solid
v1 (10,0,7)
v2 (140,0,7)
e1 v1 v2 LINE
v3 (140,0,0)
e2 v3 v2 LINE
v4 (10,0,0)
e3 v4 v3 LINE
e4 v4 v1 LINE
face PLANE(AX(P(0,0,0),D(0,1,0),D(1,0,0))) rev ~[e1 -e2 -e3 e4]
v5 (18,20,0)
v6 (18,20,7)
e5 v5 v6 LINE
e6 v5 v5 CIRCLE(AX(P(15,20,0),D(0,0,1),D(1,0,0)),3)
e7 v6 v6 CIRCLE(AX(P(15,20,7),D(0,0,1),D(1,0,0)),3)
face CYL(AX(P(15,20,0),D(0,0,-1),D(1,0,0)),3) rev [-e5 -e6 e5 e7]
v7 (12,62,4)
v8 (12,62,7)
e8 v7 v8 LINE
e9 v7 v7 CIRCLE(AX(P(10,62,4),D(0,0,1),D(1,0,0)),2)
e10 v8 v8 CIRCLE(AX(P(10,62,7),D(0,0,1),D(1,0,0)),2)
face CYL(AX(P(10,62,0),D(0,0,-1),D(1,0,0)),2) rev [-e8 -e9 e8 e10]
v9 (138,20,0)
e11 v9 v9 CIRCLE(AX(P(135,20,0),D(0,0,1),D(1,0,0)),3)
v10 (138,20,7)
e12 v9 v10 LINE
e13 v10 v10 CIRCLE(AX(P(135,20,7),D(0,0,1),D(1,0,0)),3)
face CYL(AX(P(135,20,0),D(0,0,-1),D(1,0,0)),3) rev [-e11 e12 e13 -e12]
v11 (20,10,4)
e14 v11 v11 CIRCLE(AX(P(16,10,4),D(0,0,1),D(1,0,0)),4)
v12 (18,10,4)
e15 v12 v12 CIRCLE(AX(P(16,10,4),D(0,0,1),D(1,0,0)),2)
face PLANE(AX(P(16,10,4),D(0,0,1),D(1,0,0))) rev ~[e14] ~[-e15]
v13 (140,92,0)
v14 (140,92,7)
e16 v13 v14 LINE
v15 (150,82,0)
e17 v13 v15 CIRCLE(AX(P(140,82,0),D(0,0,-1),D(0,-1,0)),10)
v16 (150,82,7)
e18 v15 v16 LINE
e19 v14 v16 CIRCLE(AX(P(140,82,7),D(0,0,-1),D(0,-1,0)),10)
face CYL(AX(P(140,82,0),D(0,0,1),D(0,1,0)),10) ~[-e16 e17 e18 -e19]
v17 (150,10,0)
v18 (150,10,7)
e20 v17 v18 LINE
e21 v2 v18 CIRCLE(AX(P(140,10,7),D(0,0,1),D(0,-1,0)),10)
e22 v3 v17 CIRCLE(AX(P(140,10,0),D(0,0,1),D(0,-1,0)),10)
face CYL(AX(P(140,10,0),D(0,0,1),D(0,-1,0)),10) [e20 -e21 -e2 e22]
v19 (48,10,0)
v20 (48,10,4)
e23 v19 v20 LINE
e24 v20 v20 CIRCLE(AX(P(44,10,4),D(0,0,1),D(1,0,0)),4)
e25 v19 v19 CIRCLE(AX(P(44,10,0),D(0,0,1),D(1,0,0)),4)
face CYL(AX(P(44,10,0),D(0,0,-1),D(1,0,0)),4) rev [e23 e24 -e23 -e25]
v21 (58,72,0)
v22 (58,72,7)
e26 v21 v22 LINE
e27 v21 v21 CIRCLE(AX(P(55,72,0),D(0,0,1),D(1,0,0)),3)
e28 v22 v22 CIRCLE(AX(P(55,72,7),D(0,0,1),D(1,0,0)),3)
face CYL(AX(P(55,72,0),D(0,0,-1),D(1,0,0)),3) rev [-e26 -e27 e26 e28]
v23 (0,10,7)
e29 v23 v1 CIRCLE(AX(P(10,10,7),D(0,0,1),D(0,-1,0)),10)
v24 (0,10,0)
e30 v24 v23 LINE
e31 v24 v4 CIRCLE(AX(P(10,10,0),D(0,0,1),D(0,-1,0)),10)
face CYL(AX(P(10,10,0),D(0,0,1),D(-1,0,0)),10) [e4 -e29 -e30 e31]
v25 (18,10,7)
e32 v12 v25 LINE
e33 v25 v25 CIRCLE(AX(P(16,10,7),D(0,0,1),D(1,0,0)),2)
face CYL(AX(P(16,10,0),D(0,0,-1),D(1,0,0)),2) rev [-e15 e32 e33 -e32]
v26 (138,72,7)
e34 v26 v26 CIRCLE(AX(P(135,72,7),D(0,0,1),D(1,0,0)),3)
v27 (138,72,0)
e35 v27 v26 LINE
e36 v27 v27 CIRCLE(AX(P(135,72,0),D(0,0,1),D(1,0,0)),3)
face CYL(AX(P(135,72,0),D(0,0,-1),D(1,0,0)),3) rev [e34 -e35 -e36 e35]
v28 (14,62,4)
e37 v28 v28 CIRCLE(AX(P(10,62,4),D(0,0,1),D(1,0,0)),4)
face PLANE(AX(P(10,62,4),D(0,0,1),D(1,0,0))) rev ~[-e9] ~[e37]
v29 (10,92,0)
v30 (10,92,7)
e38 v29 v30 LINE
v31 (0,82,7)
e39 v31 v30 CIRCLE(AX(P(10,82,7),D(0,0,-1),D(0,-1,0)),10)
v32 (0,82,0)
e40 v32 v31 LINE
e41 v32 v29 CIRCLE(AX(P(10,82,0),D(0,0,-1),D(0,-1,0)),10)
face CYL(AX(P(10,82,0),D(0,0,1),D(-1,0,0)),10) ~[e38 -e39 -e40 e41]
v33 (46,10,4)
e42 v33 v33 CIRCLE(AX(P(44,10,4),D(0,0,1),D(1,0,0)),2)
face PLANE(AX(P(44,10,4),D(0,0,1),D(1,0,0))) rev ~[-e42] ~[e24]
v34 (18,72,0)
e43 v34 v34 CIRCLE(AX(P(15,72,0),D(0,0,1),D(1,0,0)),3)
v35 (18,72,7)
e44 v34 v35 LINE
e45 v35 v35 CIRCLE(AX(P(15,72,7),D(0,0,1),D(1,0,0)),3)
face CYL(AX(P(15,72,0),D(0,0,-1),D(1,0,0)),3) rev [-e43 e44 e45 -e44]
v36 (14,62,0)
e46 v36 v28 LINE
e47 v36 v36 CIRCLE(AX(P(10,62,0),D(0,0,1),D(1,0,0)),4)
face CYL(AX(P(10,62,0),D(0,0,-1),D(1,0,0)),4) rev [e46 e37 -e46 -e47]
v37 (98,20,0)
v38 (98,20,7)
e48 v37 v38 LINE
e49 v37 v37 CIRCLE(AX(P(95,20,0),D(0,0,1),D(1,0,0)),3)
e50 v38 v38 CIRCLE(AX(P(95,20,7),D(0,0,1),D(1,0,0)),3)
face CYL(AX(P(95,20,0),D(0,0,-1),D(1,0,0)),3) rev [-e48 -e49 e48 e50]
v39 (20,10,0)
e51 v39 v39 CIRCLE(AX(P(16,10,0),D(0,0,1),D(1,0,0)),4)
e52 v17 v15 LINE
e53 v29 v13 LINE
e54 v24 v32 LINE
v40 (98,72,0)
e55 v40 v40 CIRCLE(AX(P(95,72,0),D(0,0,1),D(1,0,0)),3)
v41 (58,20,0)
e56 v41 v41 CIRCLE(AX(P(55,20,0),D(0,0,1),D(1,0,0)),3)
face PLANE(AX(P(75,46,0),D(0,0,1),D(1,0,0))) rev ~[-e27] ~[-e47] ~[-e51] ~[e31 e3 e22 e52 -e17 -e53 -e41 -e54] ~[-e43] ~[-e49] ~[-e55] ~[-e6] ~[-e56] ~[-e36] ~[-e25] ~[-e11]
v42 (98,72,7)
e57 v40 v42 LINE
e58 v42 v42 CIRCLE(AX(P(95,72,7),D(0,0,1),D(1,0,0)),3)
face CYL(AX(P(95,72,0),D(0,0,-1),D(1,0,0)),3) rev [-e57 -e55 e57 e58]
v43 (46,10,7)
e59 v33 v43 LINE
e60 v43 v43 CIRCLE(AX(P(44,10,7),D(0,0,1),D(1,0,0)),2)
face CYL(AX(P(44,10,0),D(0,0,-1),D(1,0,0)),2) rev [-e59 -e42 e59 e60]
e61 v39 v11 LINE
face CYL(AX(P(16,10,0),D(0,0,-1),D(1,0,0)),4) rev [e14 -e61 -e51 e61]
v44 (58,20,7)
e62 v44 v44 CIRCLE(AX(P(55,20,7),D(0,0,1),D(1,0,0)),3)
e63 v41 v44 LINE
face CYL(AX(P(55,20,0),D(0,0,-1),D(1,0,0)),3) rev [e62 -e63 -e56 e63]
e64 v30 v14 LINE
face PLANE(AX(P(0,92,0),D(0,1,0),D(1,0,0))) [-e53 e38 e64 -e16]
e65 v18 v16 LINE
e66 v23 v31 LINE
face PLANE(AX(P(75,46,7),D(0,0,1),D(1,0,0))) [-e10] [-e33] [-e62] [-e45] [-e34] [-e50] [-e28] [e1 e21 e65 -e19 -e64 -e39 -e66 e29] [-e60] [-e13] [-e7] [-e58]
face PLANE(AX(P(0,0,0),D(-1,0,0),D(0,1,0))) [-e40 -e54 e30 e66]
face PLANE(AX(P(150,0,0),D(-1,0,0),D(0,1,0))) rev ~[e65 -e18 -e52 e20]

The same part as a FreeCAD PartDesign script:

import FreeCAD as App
import Part
import Sketcher
from FreeCAD import Vector


def edges_at(feature, points):
    """Names of the edges that pass closest to the given points."""
    edges = feature.Shape.Edges
    near = lambda p: min(range(len(edges)), key=lambda i: edges[i].distToShape(Part.Vertex(*p))[0])
    return sorted({f"Edge{near(p) + 1}" for p in points})


def add_polygon(sketch, points):
    """Adds a closed chain of lines whose ends are joined by coincident constraints."""
    first, n = sketch.GeometryCount, len(points)
    for a, b in zip(points, points[1:] + points[:1]):
        sketch.addGeometry(Part.LineSegment(App.Vector(*a, 0), App.Vector(*b, 0)), False)
    for i in range(n):
        sketch.addConstraint(Sketcher.Constraint("Coincident", first + i, 2, first + (i + 1) % n, 1))

doc = App.newDocument("Part")
params = doc.addObject("Spreadsheet::Sheet", "Params")
for row, (alias, value) in enumerate([
    ("sketch1_diameter", "4 mm"),
    ("sketch1_diameter2", "6 mm"),
    ("sketch1_width", "150 mm"),
    ("sketch1_height", "92 mm"),
    ("pad1_length", "7 mm"),
    ("fillet_radius", "10 mm"),
    ("sketch2_diameter", "8 mm"),
    ("sketch2_diameter2", "4 mm"),
    ("pocket1_length", "4 mm"),
], start=1):
    params.set(f"A{row}", alias)
    params.set(f"B{row}", "=" + value)
    params.setAlias(f"B{row}", alias)

body = doc.addObject("PartDesign::Body", "Body")

# Sketch on XY plane
sketch1 = doc.addObject("Sketcher::SketchObject", "Sketch")
body.addObject(sketch1)
sketch1.AttachmentSupport = (doc.XY_Plane, [""])
sketch1.MapMode = "FlatFace"
add_polygon(sketch1, [(0, 92), (0, 0), (150, 0), (150, 92)])  # lines 0-3
sketch1.addGeometry(Part.Circle(Vector(16, 10, 0), Vector(0, 0, 1), 2), False)  # 4
sketch1.addGeometry(Part.Circle(Vector(15, 20, 0), Vector(0, 0, 1), 3), False)  # 5
sketch1.addGeometry(Part.Circle(Vector(44, 10, 0), Vector(0, 0, 1), 2), False)  # 6
sketch1.addGeometry(Part.Circle(Vector(55, 20, 0), Vector(0, 0, 1), 3), False)  # 7
sketch1.addGeometry(Part.Circle(Vector(95, 20, 0), Vector(0, 0, 1), 3), False)  # 8
sketch1.addGeometry(Part.Circle(Vector(135, 20, 0), Vector(0, 0, 1), 3), False)  # 9
sketch1.addGeometry(Part.Circle(Vector(10, 62, 0), Vector(0, 0, 1), 2), False)  # 10
sketch1.addGeometry(Part.Circle(Vector(15, 72, 0), Vector(0, 0, 1), 3), False)  # 11
sketch1.addGeometry(Part.Circle(Vector(55, 72, 0), Vector(0, 0, 1), 3), False)  # 12
sketch1.addGeometry(Part.Circle(Vector(95, 72, 0), Vector(0, 0, 1), 3), False)  # 13
sketch1.addGeometry(Part.Circle(Vector(135, 72, 0), Vector(0, 0, 1), 3), False)  # 14
sketch1.addConstraint([
    Sketcher.Constraint("Vertical", 0),
    Sketcher.Constraint("Horizontal", 1),
    Sketcher.Constraint("Vertical", 2),
    Sketcher.Constraint("Horizontal", 3),
    Sketcher.Constraint("Coincident", 0, 2, -1, 1),
    Sketcher.Constraint("Equal", 4, 6),
    Sketcher.Constraint("Equal", 5, 7),
    Sketcher.Constraint("Equal", 7, 8),
    Sketcher.Constraint("Equal", 8, 9),
    Sketcher.Constraint("Equal", 6, 10),
    Sketcher.Constraint("Equal", 9, 11),
    Sketcher.Constraint("Equal", 11, 12),
    Sketcher.Constraint("Equal", 12, 13),
    Sketcher.Constraint("Equal", 13, 14),
    Sketcher.Constraint("Horizontal", 4, 3, 6, 3),
    Sketcher.Constraint("Horizontal", 5, 3, 7, 3),
    Sketcher.Constraint("Horizontal", 7, 3, 8, 3),
    Sketcher.Constraint("Horizontal", 8, 3, 9, 3),
    Sketcher.Constraint("Horizontal", 11, 3, 12, 3),
    Sketcher.Constraint("Horizontal", 12, 3, 13, 3),
    Sketcher.Constraint("Horizontal", 13, 3, 14, 3),
    Sketcher.Constraint("Vertical", 5, 3, 11, 3),
    Sketcher.Constraint("Vertical", 7, 3, 12, 3),
    Sketcher.Constraint("Vertical", 8, 3, 13, 3),
    Sketcher.Constraint("Vertical", 9, 3, 14, 3),
    Sketcher.Constraint("Diameter", 4, 4.0),
    Sketcher.Constraint("Diameter", 5, 6.0),
    Sketcher.Constraint("DistanceX", 1, 1, 1, 2, 150.0),
    Sketcher.Constraint("DistanceY", 0, 2, 0, 1, 92.0),
    Sketcher.Constraint("DistanceX", -1, 1, 4, 3, 16.0),
    Sketcher.Constraint("DistanceY", -1, 1, 4, 3, 10.0),
    Sketcher.Constraint("DistanceX", -1, 1, 5, 3, 15.0),
    Sketcher.Constraint("DistanceY", -1, 1, 5, 3, 20.0),
    Sketcher.Constraint("DistanceX", -1, 1, 6, 3, 44.0),
    Sketcher.Constraint("DistanceX", -1, 1, 7, 3, 55.0),
    Sketcher.Constraint("DistanceX", -1, 1, 8, 3, 95.0),
    Sketcher.Constraint("DistanceX", -1, 1, 9, 3, 135.0),
    Sketcher.Constraint("DistanceX", -1, 1, 10, 3, 10.0),
    Sketcher.Constraint("DistanceY", -1, 1, 10, 3, 62.0),
    Sketcher.Constraint("DistanceY", -1, 1, 11, 3, 72.0),
])
sketch1.setExpression("Constraints[29]", "Params.sketch1_diameter")
sketch1.setExpression("Constraints[30]", "Params.sketch1_diameter2")
sketch1.setExpression("Constraints[31]", "Params.sketch1_width")
sketch1.setExpression("Constraints[32]", "Params.sketch1_height")
pad1 = doc.addObject("PartDesign::Pad", "Pad")
body.addObject(pad1)
pad1.Profile = sketch1
pad1.setExpression("Length", "Params.pad1_length")
doc.recompute()

fillet = doc.addObject("PartDesign::Fillet", "Fillet")
body.addObject(fillet)
fillet.Base = (pad1, edges_at(pad1, [
    (0, 92, 3.5),
    (0, 0, 3.5),
    (150, 0, 3.5),
    (150, 92, 3.5),
]))
fillet.setExpression("Radius", "Params.fillet_radius")

# Sketch on XY plane
sketch2 = doc.addObject("Sketcher::SketchObject", "Sketch001")
body.addObject(sketch2)
sketch2.AttachmentSupport = (doc.XY_Plane, [""])
sketch2.MapMode = "FlatFace"
sketch2.addGeometry([
    Part.Circle(Vector(10, 62, 0), Vector(0, 0, 1), 4),  # 0
    Part.Circle(Vector(10, 62, 0), Vector(0, 0, 1), 2),  # 1
    Part.Circle(Vector(16, 10, 0), Vector(0, 0, 1), 4),  # 2
    Part.Circle(Vector(16, 10, 0), Vector(0, 0, 1), 2),  # 3
    Part.Circle(Vector(44, 10, 0), Vector(0, 0, 1), 4),  # 4
    Part.Circle(Vector(44, 10, 0), Vector(0, 0, 1), 2),  # 5
], False)
sketch2.addConstraint([
    Sketcher.Constraint("Coincident", 1, 3, 0, 3),
    Sketcher.Constraint("Coincident", 3, 3, 2, 3),
    Sketcher.Constraint("Coincident", 5, 3, 4, 3),
    Sketcher.Constraint("Equal", 0, 2),
    Sketcher.Constraint("Equal", 1, 3),
    Sketcher.Constraint("Equal", 2, 4),
    Sketcher.Constraint("Equal", 3, 5),
    Sketcher.Constraint("Horizontal", 3, 3, 4, 3),
    Sketcher.Constraint("Diameter", 0, 8.0),
    Sketcher.Constraint("Diameter", 1, 4.0),
    Sketcher.Constraint("DistanceX", -1, 1, 0, 3, 10.0),
    Sketcher.Constraint("DistanceY", -1, 1, 0, 3, 62.0),
    Sketcher.Constraint("DistanceX", -1, 1, 2, 3, 16.0),
    Sketcher.Constraint("DistanceY", -1, 1, 2, 3, 10.0),
    Sketcher.Constraint("DistanceX", -1, 1, 4, 3, 44.0),
])
sketch2.setExpression("Constraints[8]", "Params.sketch2_diameter")
sketch2.setExpression("Constraints[9]", "Params.sketch2_diameter2")
pocket1 = doc.addObject("PartDesign::Pocket", "Pocket")
body.addObject(pocket1)
pocket1.Profile = sketch2
pocket1.setExpression("Length", "Params.pocket1_length")
pocket1.Reversed = True

doc.recompute()
